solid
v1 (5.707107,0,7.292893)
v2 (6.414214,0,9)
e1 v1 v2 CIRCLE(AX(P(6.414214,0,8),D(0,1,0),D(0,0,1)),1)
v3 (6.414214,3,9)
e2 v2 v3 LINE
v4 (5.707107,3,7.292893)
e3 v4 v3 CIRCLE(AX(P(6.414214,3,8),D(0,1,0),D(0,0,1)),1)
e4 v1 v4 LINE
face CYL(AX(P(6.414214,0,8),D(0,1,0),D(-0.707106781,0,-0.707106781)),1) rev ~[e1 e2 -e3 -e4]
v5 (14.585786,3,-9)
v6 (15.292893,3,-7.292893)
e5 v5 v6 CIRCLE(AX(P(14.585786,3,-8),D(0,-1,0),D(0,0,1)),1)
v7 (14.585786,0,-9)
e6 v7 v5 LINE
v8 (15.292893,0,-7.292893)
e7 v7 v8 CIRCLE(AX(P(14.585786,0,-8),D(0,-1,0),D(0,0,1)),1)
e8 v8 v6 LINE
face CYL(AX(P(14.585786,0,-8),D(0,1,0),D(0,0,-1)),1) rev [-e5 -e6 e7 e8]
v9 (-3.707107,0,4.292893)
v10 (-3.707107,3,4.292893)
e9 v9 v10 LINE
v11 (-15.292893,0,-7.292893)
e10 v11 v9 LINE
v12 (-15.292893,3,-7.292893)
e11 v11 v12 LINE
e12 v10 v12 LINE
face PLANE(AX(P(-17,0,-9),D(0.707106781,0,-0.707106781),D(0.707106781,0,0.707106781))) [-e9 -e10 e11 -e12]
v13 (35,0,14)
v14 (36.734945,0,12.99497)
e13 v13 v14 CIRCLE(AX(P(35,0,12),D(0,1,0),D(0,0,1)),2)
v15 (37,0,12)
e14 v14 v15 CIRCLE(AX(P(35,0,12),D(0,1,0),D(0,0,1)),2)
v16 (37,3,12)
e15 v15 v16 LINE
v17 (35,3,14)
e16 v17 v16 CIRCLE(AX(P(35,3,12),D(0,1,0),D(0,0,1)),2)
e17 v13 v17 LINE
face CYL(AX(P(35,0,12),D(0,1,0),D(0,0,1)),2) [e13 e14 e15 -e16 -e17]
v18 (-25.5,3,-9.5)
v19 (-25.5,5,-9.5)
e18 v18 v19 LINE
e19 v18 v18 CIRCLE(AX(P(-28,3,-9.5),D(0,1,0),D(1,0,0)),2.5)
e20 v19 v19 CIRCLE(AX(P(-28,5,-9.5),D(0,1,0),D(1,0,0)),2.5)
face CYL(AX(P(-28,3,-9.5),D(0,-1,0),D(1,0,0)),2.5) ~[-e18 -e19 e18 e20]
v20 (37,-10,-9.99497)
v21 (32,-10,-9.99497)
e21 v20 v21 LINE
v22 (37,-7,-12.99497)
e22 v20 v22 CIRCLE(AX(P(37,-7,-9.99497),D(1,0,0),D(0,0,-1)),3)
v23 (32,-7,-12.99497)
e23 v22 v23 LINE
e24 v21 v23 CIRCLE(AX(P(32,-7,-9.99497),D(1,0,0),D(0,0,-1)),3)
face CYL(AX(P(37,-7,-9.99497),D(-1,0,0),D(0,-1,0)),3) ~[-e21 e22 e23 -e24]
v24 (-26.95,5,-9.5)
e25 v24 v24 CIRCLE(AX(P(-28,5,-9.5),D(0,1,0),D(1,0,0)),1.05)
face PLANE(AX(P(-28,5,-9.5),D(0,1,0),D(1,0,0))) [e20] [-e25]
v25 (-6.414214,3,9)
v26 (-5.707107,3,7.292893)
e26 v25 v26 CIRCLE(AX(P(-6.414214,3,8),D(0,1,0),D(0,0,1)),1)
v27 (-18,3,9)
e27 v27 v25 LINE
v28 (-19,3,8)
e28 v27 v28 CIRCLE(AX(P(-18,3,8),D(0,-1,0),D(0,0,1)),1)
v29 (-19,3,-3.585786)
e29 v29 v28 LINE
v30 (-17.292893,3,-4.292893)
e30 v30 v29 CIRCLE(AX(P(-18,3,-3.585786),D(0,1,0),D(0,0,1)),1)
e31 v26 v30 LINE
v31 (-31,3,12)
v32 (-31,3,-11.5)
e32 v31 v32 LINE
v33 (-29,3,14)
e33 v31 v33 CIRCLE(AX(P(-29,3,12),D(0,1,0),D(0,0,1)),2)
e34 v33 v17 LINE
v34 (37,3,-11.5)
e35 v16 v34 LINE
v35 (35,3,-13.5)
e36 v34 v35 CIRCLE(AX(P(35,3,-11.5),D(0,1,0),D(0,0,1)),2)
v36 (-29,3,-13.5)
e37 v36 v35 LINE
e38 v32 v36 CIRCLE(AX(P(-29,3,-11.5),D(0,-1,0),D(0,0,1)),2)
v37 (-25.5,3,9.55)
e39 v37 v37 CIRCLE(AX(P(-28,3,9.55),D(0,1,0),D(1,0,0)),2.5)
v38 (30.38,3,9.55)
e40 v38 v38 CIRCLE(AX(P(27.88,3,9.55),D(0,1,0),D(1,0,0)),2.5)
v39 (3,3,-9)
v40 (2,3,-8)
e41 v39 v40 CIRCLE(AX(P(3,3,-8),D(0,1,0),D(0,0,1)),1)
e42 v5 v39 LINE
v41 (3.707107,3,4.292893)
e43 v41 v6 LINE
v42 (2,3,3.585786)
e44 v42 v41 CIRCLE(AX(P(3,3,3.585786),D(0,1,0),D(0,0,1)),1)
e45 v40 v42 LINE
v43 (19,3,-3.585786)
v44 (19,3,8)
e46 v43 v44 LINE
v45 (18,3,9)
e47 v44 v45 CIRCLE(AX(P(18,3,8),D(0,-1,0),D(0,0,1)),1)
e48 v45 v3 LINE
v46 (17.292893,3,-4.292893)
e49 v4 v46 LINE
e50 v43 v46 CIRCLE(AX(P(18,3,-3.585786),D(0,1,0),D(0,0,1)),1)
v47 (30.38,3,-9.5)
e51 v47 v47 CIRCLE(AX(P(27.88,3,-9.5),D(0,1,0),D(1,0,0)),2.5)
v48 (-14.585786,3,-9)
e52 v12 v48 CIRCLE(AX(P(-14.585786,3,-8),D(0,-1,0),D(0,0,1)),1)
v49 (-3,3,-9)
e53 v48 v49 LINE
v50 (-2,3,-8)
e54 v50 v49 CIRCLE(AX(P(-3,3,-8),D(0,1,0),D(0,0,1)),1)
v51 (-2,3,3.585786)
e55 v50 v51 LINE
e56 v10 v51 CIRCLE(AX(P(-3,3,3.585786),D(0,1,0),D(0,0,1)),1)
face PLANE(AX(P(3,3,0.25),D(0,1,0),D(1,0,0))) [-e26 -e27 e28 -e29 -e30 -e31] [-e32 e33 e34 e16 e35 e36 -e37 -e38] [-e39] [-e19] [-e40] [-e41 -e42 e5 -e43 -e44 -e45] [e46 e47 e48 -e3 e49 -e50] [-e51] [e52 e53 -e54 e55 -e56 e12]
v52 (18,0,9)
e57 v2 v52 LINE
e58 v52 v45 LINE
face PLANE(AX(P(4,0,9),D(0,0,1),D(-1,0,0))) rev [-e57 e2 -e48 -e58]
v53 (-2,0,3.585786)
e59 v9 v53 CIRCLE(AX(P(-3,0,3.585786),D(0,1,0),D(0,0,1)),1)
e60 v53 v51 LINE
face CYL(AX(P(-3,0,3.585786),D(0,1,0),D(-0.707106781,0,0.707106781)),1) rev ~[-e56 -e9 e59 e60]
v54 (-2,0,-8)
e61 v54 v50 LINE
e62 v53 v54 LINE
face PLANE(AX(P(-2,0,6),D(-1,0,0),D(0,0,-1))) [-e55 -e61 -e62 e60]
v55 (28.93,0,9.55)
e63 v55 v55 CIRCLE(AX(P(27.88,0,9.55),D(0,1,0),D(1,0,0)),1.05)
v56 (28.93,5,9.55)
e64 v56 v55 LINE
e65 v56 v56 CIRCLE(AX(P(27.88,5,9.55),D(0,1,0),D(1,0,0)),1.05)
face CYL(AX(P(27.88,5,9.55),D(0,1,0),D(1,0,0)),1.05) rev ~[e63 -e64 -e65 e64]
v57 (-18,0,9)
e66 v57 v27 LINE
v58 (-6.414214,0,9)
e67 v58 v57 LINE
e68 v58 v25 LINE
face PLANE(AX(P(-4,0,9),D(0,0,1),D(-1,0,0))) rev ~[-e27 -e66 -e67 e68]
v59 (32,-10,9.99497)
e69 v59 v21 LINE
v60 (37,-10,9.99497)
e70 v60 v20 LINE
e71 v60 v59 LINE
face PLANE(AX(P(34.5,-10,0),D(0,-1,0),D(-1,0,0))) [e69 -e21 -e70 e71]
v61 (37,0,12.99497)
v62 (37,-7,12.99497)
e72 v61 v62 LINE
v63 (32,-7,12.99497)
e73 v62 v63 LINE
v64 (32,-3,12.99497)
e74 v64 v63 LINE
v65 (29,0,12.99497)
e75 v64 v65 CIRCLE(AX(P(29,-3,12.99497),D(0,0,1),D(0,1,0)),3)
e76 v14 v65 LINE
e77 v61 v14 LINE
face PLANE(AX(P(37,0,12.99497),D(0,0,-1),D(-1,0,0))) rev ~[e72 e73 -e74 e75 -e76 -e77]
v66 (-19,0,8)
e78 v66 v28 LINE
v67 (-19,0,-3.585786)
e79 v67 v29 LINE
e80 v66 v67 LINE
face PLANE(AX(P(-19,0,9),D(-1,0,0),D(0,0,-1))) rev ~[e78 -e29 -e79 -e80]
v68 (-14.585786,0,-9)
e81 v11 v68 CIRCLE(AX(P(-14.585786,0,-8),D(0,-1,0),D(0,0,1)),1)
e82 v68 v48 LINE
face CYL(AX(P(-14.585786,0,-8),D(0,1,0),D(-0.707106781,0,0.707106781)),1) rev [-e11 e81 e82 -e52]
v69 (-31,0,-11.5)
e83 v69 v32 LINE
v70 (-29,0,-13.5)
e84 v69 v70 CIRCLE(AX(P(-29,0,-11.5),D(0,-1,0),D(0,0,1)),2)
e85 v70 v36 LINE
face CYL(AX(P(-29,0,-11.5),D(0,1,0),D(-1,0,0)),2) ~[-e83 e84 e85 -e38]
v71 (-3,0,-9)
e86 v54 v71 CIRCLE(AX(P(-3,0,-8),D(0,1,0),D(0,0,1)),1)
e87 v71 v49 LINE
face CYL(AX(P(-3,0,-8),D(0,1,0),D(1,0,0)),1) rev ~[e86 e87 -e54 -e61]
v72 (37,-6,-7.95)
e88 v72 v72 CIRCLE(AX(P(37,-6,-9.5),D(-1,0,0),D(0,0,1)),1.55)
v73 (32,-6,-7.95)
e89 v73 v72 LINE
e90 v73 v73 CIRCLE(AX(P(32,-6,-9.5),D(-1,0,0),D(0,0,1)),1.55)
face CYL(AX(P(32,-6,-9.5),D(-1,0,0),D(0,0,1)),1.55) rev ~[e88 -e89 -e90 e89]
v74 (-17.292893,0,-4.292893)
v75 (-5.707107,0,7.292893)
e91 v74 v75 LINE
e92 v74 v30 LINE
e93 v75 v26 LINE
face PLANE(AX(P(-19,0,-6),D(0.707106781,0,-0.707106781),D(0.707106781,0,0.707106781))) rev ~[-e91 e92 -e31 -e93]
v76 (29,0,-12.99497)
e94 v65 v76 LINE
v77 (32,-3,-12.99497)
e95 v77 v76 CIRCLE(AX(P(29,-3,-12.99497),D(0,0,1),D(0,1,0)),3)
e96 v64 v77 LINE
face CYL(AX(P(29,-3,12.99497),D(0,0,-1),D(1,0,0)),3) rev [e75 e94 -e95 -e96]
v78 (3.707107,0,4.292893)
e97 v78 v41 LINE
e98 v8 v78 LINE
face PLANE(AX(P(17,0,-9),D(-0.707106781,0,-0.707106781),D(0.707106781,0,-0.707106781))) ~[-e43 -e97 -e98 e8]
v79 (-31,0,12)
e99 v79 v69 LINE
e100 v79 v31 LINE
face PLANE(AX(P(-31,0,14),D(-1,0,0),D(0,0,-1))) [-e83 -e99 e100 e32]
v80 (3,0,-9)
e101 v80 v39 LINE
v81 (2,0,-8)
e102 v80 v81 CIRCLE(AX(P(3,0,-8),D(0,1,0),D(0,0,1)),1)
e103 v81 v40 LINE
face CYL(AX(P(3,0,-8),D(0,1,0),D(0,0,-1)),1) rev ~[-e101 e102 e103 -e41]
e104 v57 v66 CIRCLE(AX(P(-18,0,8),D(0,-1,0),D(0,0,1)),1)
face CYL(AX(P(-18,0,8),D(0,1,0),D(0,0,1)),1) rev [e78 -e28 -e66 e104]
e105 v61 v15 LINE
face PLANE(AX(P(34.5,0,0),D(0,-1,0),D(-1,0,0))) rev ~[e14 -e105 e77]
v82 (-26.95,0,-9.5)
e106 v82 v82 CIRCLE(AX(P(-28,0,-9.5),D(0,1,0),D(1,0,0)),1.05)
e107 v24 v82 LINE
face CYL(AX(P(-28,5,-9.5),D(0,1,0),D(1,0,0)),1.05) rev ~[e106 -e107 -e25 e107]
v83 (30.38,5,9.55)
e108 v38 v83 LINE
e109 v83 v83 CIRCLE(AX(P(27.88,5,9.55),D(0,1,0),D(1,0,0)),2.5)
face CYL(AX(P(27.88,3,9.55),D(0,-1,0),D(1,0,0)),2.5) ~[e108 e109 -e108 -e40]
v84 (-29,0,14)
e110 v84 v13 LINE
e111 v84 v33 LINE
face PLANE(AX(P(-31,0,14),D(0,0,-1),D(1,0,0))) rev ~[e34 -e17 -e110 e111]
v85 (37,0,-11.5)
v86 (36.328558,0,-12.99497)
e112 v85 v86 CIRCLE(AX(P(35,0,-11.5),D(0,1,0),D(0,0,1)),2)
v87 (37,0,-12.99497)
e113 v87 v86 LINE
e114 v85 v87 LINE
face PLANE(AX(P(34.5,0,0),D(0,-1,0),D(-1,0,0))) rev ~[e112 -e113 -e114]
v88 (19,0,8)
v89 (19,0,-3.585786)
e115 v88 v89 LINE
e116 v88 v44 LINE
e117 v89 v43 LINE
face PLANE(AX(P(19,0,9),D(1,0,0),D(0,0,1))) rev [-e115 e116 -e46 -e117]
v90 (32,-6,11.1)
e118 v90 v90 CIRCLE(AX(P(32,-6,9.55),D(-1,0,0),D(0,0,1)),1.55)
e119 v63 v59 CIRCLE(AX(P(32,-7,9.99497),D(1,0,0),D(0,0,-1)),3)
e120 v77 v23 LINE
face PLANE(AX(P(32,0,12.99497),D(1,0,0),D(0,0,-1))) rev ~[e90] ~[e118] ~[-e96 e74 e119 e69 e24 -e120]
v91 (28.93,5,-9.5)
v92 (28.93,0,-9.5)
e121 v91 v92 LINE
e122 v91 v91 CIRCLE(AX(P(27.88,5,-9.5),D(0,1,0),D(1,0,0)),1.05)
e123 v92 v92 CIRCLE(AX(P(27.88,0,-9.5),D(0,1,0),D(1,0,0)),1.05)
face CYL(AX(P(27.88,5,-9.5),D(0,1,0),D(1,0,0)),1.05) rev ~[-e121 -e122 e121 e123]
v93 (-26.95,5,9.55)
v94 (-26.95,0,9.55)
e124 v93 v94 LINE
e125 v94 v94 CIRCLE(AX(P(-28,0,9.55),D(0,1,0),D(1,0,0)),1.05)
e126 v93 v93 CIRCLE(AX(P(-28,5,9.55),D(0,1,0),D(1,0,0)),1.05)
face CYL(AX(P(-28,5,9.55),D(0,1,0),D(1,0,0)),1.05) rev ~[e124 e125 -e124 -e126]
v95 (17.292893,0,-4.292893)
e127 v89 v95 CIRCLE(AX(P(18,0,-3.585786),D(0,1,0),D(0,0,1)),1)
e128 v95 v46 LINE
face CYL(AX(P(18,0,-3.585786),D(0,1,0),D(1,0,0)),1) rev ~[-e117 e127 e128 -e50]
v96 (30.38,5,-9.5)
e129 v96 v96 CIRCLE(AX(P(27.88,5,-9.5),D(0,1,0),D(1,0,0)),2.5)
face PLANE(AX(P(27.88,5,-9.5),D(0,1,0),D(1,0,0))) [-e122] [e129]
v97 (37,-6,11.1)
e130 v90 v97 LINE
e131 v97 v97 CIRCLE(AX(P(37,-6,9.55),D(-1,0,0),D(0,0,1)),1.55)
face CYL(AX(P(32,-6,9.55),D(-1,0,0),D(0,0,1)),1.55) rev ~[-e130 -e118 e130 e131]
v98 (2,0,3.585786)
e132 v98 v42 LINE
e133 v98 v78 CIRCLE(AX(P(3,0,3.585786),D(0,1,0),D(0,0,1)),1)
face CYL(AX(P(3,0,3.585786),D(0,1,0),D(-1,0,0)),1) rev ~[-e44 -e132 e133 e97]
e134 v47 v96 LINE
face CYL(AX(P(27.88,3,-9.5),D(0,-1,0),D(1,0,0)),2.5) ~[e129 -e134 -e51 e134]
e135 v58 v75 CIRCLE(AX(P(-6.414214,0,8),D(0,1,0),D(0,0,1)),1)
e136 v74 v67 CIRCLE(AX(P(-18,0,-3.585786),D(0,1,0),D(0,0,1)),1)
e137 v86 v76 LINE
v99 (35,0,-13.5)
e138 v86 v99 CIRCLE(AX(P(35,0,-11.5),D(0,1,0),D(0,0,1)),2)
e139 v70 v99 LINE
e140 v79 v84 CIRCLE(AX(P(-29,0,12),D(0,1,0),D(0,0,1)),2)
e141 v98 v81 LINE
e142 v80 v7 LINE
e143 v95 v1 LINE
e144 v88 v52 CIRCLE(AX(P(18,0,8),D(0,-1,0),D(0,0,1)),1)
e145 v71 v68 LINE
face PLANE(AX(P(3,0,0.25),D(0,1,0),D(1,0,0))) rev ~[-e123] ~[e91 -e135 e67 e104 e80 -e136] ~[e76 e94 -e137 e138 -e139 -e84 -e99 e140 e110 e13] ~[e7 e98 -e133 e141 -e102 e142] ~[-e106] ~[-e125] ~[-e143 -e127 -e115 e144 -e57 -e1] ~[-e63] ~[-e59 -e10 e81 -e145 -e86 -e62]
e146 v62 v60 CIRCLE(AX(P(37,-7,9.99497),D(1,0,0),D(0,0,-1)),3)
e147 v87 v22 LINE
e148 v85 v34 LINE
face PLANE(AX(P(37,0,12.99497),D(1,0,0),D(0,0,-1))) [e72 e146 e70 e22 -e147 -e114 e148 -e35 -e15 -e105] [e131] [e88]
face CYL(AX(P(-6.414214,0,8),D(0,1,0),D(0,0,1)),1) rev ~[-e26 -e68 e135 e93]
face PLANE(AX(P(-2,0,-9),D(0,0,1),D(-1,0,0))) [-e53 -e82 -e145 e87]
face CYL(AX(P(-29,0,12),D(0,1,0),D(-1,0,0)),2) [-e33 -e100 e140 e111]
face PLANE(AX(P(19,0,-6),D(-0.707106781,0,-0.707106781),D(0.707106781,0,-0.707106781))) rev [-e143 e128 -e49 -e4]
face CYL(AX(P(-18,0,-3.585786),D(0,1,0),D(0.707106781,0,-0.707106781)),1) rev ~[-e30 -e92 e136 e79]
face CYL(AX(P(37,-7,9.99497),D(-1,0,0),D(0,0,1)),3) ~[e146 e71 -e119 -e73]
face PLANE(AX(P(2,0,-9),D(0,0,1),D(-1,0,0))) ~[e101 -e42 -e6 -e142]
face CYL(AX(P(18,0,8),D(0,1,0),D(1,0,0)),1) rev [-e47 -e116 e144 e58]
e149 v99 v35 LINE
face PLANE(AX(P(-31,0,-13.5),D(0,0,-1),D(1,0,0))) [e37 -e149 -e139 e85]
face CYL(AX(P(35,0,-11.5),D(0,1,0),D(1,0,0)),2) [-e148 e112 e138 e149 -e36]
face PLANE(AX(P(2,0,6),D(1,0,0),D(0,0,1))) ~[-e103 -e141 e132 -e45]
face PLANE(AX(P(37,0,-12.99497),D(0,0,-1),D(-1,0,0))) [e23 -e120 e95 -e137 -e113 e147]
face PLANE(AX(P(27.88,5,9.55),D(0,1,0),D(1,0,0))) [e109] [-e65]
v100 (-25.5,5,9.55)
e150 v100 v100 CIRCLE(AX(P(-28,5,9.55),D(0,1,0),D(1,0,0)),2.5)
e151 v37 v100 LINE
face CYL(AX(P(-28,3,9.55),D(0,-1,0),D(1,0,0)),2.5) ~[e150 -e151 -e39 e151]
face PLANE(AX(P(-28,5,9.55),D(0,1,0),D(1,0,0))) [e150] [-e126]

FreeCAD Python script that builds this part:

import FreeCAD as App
import Part
import Sketcher
Q = App.Units.Quantity


def edges_at(feature, points):
    """Names of the edges that pass closest to the given points."""
    edges = feature.Shape.Edges
    near = lambda p: min(range(len(edges)), key=lambda i: edges[i].distToShape(Part.Vertex(*p))[0])
    return sorted({f"Edge{near(p) + 1}" for p in points})


def add_polygon(sketch, points):
    """Adds a closed chain of lines whose ends are joined by coincident constraints."""
    first, n = sketch.GeometryCount, len(points)
    for a, b in zip(points, points[1:] + points[:1]):
        sketch.addGeometry(Part.LineSegment(App.Vector(*a, 0), App.Vector(*b, 0)), False)
    for i in range(n):
        sketch.addConstraint(Sketcher.Constraint("Coincident", first + i, 2, first + (i + 1) % n, 1))

doc = App.newDocument("Part")
params = doc.addObject("Spreadsheet::Sheet", "Params")
for row, (alias, value) in enumerate([
    ("sketch1_width", "68 mm"),
    ("sketch1_height", "27.5 mm"),
    ("pad1_length", "3 mm"),
    ("fillet_radius", "2 mm"),
    ("sketch2_diameter", "5 mm"),
    ("pad2_length", "2 mm"),
    ("sketch3_diameter", "2.1 mm"),
    ("pocket1_length", "12 mm"),
    ("sketch4_width", "5 mm"),
    ("pad3_length", "10 mm"),
    ("sketch5_diameter", "3.1 mm"),
    ("pocket2_length", "10 mm"),
    ("fillet2_radius", "3 mm"),
    ("fillet3_radius", "3 mm"),
    ("sketch6_width", "15 mm"),
    ("pocket3_length", "10 mm"),
    ("fillet4_radius", "1 mm"),
    ("fillet5_radius", "1 mm"),
], start=1):
    params.set(f"A{row}", alias)
    params.set(f"B{row}", "=" + value)
    params.setAlias(f"B{row}", alias)

body = doc.addObject("PartDesign::Body", "Body")

sketch1 = doc.addObject("Sketcher::SketchObject", "Sketch")
body.addObject(sketch1)
sketch1.AttachmentSupport = (doc.XZ_Plane, [""])
sketch1.MapMode = "FlatFace"
add_polygon(sketch1, [(-31, -13.5), (-31, 14), (37, 14), (37, -13.5)])
sketch1.addConstraint([
    Sketcher.Constraint("Vertical", 0),
    Sketcher.Constraint("Horizontal", 1),
    Sketcher.Constraint("Vertical", 2),
    Sketcher.Constraint("Horizontal", 3),
    Sketcher.Constraint("DistanceX", 1, 1, 1, 2, Q("68 mm")),
    Sketcher.Constraint("DistanceY", 0, 1, 0, 2, Q("27.5 mm")),
    Sketcher.Constraint("DistanceX", 0, 2, -1, 1, Q("31 mm")),
    Sketcher.Constraint("DistanceY", -1, 1, 0, 2, Q("14 mm")),
])
sketch1.setExpression("Constraints[8]", "Params.sketch1_width")
sketch1.setExpression("Constraints[9]", "Params.sketch1_height")
pad1 = doc.addObject("PartDesign::Pad", "Pad")
body.addObject(pad1)
pad1.Profile = sketch1
pad1.setExpression("Length", "Params.pad1_length")
pad1.Reversed = True
doc.recompute()

fillet = doc.addObject("PartDesign::Fillet", "Fillet")
body.addObject(fillet)
fillet.Base = (pad1, edges_at(pad1, [
    (-31, 1.5, -13.5),
    (37, 1.5, -13.5),
    (37, 1.5, 14),
    (-31, 1.5, 14),
]))
fillet.setExpression("Radius", "Params.fillet_radius")

sketch2 = doc.addObject("Sketcher::SketchObject", "Sketch001")
body.addObject(sketch2)
sketch2.AttachmentSupport = (doc.XZ_Plane, [""])
sketch2.MapMode = "FlatFace"
sketch2.AttachmentOffset = App.Placement(App.Vector(0, 0, -3), App.Rotation())
sketch2.addGeometry([
    Part.Circle(App.Vector(-28, -9.5, 0), App.Vector(0, 0, 1), 2.5),
    Part.Circle(App.Vector(27.88, -9.5, 0), App.Vector(0, 0, 1), 2.5),
    Part.Circle(App.Vector(27.88, 9.55, 0), App.Vector(0, 0, 1), 2.5),
    Part.Circle(App.Vector(-28, 9.55, 0), App.Vector(0, 0, 1), 2.5),
], False)
sketch2.addConstraint([
    Sketcher.Constraint("Equal", 0, 1),
    Sketcher.Constraint("Equal", 1, 2),
    Sketcher.Constraint("Equal", 2, 3),
    Sketcher.Constraint("Horizontal", 0, 3, 1, 3),
    Sketcher.Constraint("Horizontal", 2, 3, 3, 3),
    Sketcher.Constraint("Vertical", 1, 3, 2, 3),
    Sketcher.Constraint("Vertical", 0, 3, 3, 3),
    Sketcher.Constraint("Diameter", 0, Q("5 mm")),
    Sketcher.Constraint("DistanceX", 0, 3, -1, 1, Q("28 mm")),
    Sketcher.Constraint("DistanceY", 0, 3, -1, 1, Q("9.5 mm")),
    Sketcher.Constraint("DistanceX", -1, 1, 1, 3, Q("27.88 mm")),
    Sketcher.Constraint("DistanceY", -1, 1, 2, 3, Q("9.55 mm")),
])
sketch2.setExpression("Constraints[7]", "Params.sketch2_diameter")
pad2 = doc.addObject("PartDesign::Pad", "Pad001")
body.addObject(pad2)
pad2.Profile = sketch2
pad2.setExpression("Length", "Params.pad2_length")
pad2.Reversed = True

sketch3 = doc.addObject("Sketcher::SketchObject", "Sketch002")
body.addObject(sketch3)
sketch3.AttachmentSupport = (doc.XZ_Plane, [""])
sketch3.MapMode = "FlatFace"
sketch3.AttachmentOffset = App.Placement(App.Vector(0, 0, -5), App.Rotation())
sketch3.addGeometry([
    Part.Circle(App.Vector(-28, -9.5, 0), App.Vector(0, 0, 1), 1.05),
    Part.Circle(App.Vector(-28, 9.55, 0), App.Vector(0, 0, 1), 1.05),
    Part.Circle(App.Vector(27.88, 9.55, 0), App.Vector(0, 0, 1), 1.05),
    Part.Circle(App.Vector(27.88, -9.5, 0), App.Vector(0, 0, 1), 1.05),
], False)
sketch3.addConstraint([
    Sketcher.Constraint("Equal", 0, 1),
    Sketcher.Constraint("Equal", 1, 2),
    Sketcher.Constraint("Equal", 2, 3),
    Sketcher.Constraint("Horizontal", 1, 3, 2, 3),
    Sketcher.Constraint("Horizontal", 0, 3, 3, 3),
    Sketcher.Constraint("Vertical", 0, 3, 1, 3),
    Sketcher.Constraint("Vertical", 2, 3, 3, 3),
    Sketcher.Constraint("Diameter", 0, Q("2.1 mm")),
    Sketcher.Constraint("DistanceX", 0, 3, -1, 1, Q("28 mm")),
    Sketcher.Constraint("DistanceY", 0, 3, -1, 1, Q("9.5 mm")),
    Sketcher.Constraint("DistanceY", -1, 1, 1, 3, Q("9.55 mm")),
    Sketcher.Constraint("DistanceX", -1, 1, 2, 3, Q("27.88 mm")),
])
sketch3.setExpression("Constraints[7]", "Params.sketch3_diameter")
pocket1 = doc.addObject("PartDesign::Pocket", "Pocket")
body.addObject(pocket1)
pocket1.Profile = sketch3
pocket1.setExpression("Length", "Params.pocket1_length")
pocket1.Reversed = True

sketch4 = doc.addObject("Sketcher::SketchObject", "Sketch003")
body.addObject(sketch4)
sketch4.AttachmentSupport = (doc.XZ_Plane, [""])
sketch4.MapMode = "FlatFace"
add_polygon(sketch4, [(37, -12.99497), (37, 12.99497), (32, 12.99497), (32, -12.99497)])
sketch4.addConstraint([
    Sketcher.Constraint("Vertical", 0),
    Sketcher.Constraint("Horizontal", 1),
    Sketcher.Constraint("Vertical", 2),
    Sketcher.Constraint("Horizontal", 3),
    Sketcher.Constraint("DistanceX", 1, 2, 1, 1, Q("5 mm")),
    Sketcher.Constraint("DistanceX", -1, 1, 0, 2, Q("37 mm")),
    Sketcher.Constraint("DistanceY", 0, 1, 0, 2, Q("25.989939 mm")),
    Sketcher.Constraint("DistanceY", -1, 1, 0, 2, Q("12.99497 mm")),
])
sketch4.setExpression("Constraints[8]", "Params.sketch4_width")
pad3 = doc.addObject("PartDesign::Pad", "Pad002")
body.addObject(pad3)
pad3.Profile = sketch4
pad3.setExpression("Length", "Params.pad3_length")

sketch5 = doc.addObject("Sketcher::SketchObject", "Sketch004")
body.addObject(sketch5)
sketch5.AttachmentSupport = (doc.YZ_Plane, [""])
sketch5.MapMode = "FlatFace"
sketch5.AttachmentOffset = App.Placement(App.Vector(0, 0, 32), App.Rotation())
sketch5.addGeometry([
    Part.Circle(App.Vector(-6, -9.5, 0), App.Vector(0, 0, 1), 1.55),
    Part.Circle(App.Vector(-6, 9.55, 0), App.Vector(0, 0, 1), 1.55),
], False)
sketch5.addConstraint([
    Sketcher.Constraint("Equal", 0, 1),
    Sketcher.Constraint("Vertical", 0, 3, 1, 3),
    Sketcher.Constraint("Diameter", 0, Q("3.1 mm")),
    Sketcher.Constraint("DistanceX", 0, 3, -1, 1, Q("6 mm")),
    Sketcher.Constraint("DistanceY", 0, 3, -1, 1, Q("9.5 mm")),
    Sketcher.Constraint("DistanceY", -1, 1, 1, 3, Q("9.55 mm")),
])
sketch5.setExpression("Constraints[2]", "Params.sketch5_diameter")
pocket2 = doc.addObject("PartDesign::Pocket", "Pocket001")
body.addObject(pocket2)
pocket2.Profile = sketch5
pocket2.setExpression("Length", "Params.pocket2_length")
pocket2.Reversed = True
doc.recompute()

fillet2 = doc.addObject("PartDesign::Fillet", "Fillet001")
body.addObject(fillet2)
fillet2.Base = (pocket2, edges_at(pocket2, [(34.5, -10, 12.995), (34.5, -10, -12.995)]))
fillet2.setExpression("Radius", "Params.fillet2_radius")
doc.recompute()

fillet3 = doc.addObject("PartDesign::Fillet", "Fillet002")
body.addObject(fillet3)
fillet3.Base = (fillet2, edges_at(fillet2, [(32, 0, 0)]))
fillet3.setExpression("Radius", "Params.fillet3_radius")

sketch6 = doc.addObject("Sketcher::SketchObject", "Sketch005")
body.addObject(sketch6)
sketch6.AttachmentSupport = (doc.XZ_Plane, [""])
sketch6.MapMode = "FlatFace"
add_polygon(sketch6, [(-19, 9), (-19, -6), (-4, 9)])
add_polygon(sketch6, [(-2, 6), (-17, -9), (-2, -9)])
sketch6.addConstraint([
    Sketcher.Constraint("Vertical", 0),
    Sketcher.Constraint("Horizontal", 2),
    Sketcher.Constraint("Horizontal", 4),
    Sketcher.Constraint("Vertical", 5),
    Sketcher.Constraint("Parallel", 1, 3),
    Sketcher.Constraint("Equal", 2, 4),
    Sketcher.Constraint("Equal", 4, 0),
    Sketcher.Constraint("DistanceX", 2, 2, 2, 1, Q("15 mm")),
    Sketcher.Constraint("DistanceX", 0, 2, -1, 1, Q("19 mm")),
    Sketcher.Constraint("DistanceY", 0, 2, -1, 1, Q("6 mm")),
    Sketcher.Constraint("DistanceX", 3, 2, -1, 1, Q("17 mm")),
    Sketcher.Constraint("DistanceY", 3, 2, -1, 1, Q("9 mm")),
])
sketch6.setExpression("Constraints[13]", "Params.sketch6_width")
pocket3 = doc.addObject("PartDesign::Pocket", "Pocket002")
body.addObject(pocket3)
pocket3.Profile = sketch6
pocket3.setExpression("Length", "Params.pocket3_length")
doc.recompute()

fillet4 = doc.addObject("PartDesign::Fillet", "Fillet003")
body.addObject(fillet4)
fillet4.Base = (pocket3, edges_at(pocket3, [
    (-2, 1.5, -9),
    (-17, 1.5, -9),
    (-2, 1.5, 6),
    (-19, 1.5, 9),
    (-4, 1.5, 9),
    (-19, 1.5, -6),
]))
fillet4.setExpression("Radius", "Params.fillet4_radius")
doc.recompute()

mirrored = doc.addObject("PartDesign::Mirrored", "Mirrored")
body.addObject(mirrored)
mirrored.Originals = [pocket3]
mirrored.MirrorPlane = (doc.YZ_Plane, [""])
body.Tip = mirrored
doc.recompute()

fillet5 = doc.addObject("PartDesign::Fillet", "Fillet004")
body.addObject(fillet5)
fillet5.Base = (mirrored, edges_at(mirrored, [
    (2, 1.5, -9),
    (17, 1.5, -9),
    (2, 1.5, 6),
    (19, 1.5, 9),
    (4, 1.5, 9),
    (19, 1.5, -6),
]))
fillet5.setExpression("Radius", "Params.fillet5_radius")

doc.recompute()
